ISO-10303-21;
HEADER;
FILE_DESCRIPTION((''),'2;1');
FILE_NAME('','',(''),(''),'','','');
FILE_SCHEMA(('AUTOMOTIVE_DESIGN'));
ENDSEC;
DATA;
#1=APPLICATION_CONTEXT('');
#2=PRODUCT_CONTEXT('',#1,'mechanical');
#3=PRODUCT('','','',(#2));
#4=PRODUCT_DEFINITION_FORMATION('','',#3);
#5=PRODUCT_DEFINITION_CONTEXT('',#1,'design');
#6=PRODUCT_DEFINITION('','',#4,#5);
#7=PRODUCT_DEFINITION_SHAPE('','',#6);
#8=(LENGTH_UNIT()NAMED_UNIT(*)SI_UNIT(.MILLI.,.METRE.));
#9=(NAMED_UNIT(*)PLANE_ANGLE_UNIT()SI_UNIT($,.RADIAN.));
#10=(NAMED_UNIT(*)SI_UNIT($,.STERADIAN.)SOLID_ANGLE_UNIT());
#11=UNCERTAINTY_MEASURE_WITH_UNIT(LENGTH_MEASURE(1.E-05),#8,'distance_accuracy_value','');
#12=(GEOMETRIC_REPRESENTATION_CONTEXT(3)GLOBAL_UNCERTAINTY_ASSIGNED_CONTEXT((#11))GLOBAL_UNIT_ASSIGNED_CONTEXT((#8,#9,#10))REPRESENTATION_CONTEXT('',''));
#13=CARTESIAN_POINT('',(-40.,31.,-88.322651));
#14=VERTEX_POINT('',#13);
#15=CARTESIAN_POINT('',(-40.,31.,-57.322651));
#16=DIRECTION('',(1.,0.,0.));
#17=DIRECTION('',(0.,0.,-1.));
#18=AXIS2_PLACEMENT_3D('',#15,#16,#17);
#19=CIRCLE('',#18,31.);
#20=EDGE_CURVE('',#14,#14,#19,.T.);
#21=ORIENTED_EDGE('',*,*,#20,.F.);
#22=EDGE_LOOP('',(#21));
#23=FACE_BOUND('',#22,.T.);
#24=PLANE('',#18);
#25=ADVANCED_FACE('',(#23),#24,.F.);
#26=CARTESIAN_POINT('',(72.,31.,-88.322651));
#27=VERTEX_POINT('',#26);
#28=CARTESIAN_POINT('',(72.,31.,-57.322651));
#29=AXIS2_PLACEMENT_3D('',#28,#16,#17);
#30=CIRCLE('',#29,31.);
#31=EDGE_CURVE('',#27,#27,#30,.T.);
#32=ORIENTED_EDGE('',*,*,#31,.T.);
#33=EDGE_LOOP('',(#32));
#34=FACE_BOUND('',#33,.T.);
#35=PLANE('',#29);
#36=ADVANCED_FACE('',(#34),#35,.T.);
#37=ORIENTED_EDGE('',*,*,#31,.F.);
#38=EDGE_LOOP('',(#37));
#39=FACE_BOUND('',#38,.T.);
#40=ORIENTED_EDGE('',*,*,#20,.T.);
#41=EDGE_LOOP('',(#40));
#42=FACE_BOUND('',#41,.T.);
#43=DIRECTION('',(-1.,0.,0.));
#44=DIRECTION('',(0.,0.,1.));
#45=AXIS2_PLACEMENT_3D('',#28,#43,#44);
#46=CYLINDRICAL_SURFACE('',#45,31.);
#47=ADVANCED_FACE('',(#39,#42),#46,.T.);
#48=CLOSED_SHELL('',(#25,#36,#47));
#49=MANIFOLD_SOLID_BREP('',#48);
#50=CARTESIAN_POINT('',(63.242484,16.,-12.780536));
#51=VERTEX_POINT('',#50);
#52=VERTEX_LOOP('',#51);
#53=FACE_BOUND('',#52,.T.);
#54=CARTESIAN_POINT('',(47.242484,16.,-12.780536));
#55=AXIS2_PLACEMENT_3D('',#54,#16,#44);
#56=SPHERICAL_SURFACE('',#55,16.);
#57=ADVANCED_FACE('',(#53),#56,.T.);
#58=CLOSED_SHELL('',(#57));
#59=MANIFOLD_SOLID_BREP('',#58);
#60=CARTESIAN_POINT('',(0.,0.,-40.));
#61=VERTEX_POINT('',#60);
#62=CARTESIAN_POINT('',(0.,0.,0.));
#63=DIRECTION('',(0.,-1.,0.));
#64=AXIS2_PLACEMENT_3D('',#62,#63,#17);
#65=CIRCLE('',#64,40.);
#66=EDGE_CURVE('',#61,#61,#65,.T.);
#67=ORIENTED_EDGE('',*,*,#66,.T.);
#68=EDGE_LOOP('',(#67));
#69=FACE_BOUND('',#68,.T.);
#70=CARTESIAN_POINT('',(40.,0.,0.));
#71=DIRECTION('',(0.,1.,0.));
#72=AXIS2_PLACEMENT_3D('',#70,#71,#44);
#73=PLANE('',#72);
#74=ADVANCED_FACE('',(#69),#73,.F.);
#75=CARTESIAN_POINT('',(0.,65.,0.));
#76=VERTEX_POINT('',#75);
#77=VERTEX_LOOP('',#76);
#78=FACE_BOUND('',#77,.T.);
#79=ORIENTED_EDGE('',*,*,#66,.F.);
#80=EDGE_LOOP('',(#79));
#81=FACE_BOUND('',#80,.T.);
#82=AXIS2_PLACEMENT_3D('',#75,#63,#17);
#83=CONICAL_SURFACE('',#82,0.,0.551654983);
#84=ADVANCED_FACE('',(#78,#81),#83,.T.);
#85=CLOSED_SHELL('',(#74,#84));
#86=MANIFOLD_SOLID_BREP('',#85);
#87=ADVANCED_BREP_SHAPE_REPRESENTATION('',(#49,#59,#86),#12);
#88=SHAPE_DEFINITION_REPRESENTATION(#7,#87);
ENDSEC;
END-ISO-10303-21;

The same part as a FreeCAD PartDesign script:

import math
import FreeCAD as App
import Part
import Sketcher


def add_polygon(sketch, points):
    """Adds a closed chain of lines whose ends are joined by coincident constraints."""
    first, n = sketch.GeometryCount, len(points)
    for a, b in zip(points, points[1:] + points[:1]):
        sketch.addGeometry(Part.LineSegment(App.Vector(*a, 0), App.Vector(*b, 0)), False)
    for i in range(n):
        sketch.addConstraint(Sketcher.Constraint("Coincident", first + i, 2, first + (i + 1) % n, 1))

doc = App.newDocument("Part")
body = doc.addObject("PartDesign::Body", "Body")

sketch1 = body.newObject("Sketcher::SketchObject", "Sketch")
sketch1.AttachmentSupport = (doc.getObject("XY_Plane"), [""])
sketch1.MapMode = "FlatFace"
add_polygon(sketch1, [(0, 0), (40, 0), (0, 65)])
sketch1.addConstraint([
    Sketcher.Constraint("Horizontal", 0),
    Sketcher.Constraint("Vertical", 2),
    Sketcher.Constraint("Coincident", 2, 2, -1, 1),
    Sketcher.Constraint("DistanceX", 0, 1, 0, 2, 40.0),
    Sketcher.Constraint("DistanceY", 2, 2, 2, 1, 65.0),
])
revolution = body.newObject("PartDesign::Revolution", "Revolution")
revolution.Profile = sketch1
revolution.ReferenceAxis = (sketch1, ["V_Axis"])
revolution.Angle = 360
body2 = doc.addObject("PartDesign::Body", "Body001")

sketch2 = body2.newObject("Sketcher::SketchObject", "Sketch001")
sketch2.AttachmentSupport = (doc.getObject("YZ_Plane001"), [""])
sketch2.MapMode = "FlatFace"
sketch2.addGeometry(Part.Circle(App.Vector(31, -57.322651, 0), App.Vector(0, 0, 1), 31), False)
sketch2.addConstraint([
    Sketcher.Constraint("Diameter", 0, 62.0),
    Sketcher.Constraint("DistanceX", -1, 1, 0, 3, 31.0),
    Sketcher.Constraint("DistanceY", 0, 3, -1, 1, 57.322651),
])
pad1 = body2.newObject("PartDesign::Pad", "Pad")
pad1.Profile = sketch2
pad1.Type = "TwoLengths"
pad1.Length = 72
pad1.Length2 = 40
body3 = doc.addObject("PartDesign::Body", "Body002")

sketch3 = body3.newObject("Sketcher::SketchObject", "Sketch002")
sketch3.AttachmentSupport = (doc.getObject("XZ_Plane002"), [""])
sketch3.MapMode = "FlatFace"
sketch3.AttachmentOffset = App.Placement(App.Vector(0, 0, -16), App.Rotation())
sketch3.addGeometry([
    Part.LineSegment(App.Vector(31.242484, -12.780536, 0), App.Vector(63.242484, -12.780536, 0)),
    Part.ArcOfCircle(Part.Circle(App.Vector(47.242484, -12.780536, 0), App.Vector(0, 0, 1), 16), math.radians(180), math.radians(360)),
], False)
sketch3.addGeometry(Part.LineSegment(App.Vector(63.242484, -12.780536, 0), App.Vector(31.242484, -12.780536, 0)), True)
sketch3.addConstraint([
    Sketcher.Constraint("Coincident", 0, 1, 1, 1),
    Sketcher.Constraint("Coincident", 1, 2, 0, 2),
    Sketcher.Constraint("Horizontal", 0),
    Sketcher.Constraint("Horizontal", 2),
    Sketcher.Constraint("Coincident", 2, 1, 1, 2),
    Sketcher.Constraint("Horizontal", 1, 3, 0, 1),
    Sketcher.Constraint("Equal", 0, 2),
    Sketcher.Constraint("Radius", 1, 16.0),
    Sketcher.Constraint("DistanceX", -1, 1, 1, 3, 47.242484),
    Sketcher.Constraint("DistanceY", 1, 3, -1, 1, 12.780536),
])
revolution2 = body3.newObject("PartDesign::Revolution", "Revolution001")
revolution2.Profile = sketch3
revolution2.ReferenceAxis = (sketch3, ["Axis0"])
revolution2.Angle = 360

doc.recompute()
